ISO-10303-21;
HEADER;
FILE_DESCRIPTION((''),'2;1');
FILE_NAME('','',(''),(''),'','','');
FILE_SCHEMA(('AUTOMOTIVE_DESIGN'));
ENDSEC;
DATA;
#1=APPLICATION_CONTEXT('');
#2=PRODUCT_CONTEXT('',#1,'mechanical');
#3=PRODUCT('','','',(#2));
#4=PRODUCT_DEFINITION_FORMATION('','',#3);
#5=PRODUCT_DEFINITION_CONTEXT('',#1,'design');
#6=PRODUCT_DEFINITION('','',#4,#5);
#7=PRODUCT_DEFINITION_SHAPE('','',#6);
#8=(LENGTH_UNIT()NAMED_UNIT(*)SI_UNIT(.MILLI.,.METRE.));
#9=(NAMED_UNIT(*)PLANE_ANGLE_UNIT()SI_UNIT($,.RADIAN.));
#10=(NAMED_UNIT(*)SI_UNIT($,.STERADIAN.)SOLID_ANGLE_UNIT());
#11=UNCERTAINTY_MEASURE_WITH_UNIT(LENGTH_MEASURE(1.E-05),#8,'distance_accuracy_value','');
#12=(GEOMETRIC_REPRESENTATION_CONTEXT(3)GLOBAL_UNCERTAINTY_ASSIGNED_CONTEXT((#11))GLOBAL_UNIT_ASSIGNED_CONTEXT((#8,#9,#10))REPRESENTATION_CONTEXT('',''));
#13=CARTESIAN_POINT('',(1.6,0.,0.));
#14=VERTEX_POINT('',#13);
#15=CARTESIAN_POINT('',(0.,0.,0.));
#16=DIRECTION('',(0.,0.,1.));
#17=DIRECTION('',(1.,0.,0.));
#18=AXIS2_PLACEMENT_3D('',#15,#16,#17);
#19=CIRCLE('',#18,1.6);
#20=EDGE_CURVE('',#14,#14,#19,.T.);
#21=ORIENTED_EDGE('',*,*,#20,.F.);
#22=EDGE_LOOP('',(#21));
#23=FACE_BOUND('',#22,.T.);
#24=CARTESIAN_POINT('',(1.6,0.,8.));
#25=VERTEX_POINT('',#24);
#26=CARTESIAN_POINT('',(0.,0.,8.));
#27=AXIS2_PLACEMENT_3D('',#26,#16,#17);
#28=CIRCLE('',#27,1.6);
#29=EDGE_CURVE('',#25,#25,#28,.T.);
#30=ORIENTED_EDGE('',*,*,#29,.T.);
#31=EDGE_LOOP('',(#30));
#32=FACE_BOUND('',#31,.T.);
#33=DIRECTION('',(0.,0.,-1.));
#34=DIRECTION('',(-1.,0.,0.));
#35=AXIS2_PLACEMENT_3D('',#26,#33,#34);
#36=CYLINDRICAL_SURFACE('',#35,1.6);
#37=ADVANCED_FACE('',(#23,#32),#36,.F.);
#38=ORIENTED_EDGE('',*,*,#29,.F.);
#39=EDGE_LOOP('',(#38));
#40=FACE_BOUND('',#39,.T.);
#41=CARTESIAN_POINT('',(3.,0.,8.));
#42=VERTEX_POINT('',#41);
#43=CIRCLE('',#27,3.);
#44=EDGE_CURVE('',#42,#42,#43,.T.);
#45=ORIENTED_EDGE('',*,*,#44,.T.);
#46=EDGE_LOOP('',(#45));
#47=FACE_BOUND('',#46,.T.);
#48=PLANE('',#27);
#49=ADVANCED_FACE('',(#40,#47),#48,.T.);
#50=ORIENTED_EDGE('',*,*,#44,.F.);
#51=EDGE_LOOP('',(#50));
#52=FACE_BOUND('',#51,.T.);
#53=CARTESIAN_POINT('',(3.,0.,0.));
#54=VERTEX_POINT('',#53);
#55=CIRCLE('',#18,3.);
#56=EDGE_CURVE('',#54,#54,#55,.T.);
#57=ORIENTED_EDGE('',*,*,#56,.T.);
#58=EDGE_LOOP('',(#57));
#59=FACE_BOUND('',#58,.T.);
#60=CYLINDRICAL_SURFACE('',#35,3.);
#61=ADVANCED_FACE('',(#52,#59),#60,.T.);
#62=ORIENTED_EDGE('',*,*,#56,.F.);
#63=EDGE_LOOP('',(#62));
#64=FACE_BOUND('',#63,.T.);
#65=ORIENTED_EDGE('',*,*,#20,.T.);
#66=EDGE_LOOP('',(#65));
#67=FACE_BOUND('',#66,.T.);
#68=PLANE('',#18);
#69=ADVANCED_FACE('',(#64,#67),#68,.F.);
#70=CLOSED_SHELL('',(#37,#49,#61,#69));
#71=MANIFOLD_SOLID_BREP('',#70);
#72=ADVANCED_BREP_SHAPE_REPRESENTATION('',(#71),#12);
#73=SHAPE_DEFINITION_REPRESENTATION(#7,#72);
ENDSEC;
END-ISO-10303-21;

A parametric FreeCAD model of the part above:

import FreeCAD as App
import Part
import Sketcher
from FreeCAD import Vector
Q = App.Units.Quantity

doc = App.newDocument("Part")
body = doc.addObject("PartDesign::Body", "Body")

sketch1 = doc.addObject("Sketcher::SketchObject", "Sketch")
body.addObject(sketch1)
sketch1.AttachmentSupport = (doc.XY_Plane, [""])
sketch1.MapMode = "FlatFace"
sketch1.addGeometry([
    Part.Circle(Vector(0, 0, 0), Vector(0, 0, 1), 3),
    Part.Circle(Vector(0, 0, 0), Vector(0, 0, 1), 1.6),
], False)
sketch1.addConstraint([
    Sketcher.Constraint("Coincident", 0, 3, -1, 1),
    Sketcher.Constraint("Coincident", 1, 3, -1, 1),
    Sketcher.Constraint("Diameter", 0, Q("6 mm")),
    Sketcher.Constraint("Diameter", 1, Q("3.2 mm")),
])
pad1 = doc.addObject("PartDesign::Pad", "Pad")
body.addObject(pad1)
pad1.Profile = sketch1
pad1.Length = 8

doc.recompute()
